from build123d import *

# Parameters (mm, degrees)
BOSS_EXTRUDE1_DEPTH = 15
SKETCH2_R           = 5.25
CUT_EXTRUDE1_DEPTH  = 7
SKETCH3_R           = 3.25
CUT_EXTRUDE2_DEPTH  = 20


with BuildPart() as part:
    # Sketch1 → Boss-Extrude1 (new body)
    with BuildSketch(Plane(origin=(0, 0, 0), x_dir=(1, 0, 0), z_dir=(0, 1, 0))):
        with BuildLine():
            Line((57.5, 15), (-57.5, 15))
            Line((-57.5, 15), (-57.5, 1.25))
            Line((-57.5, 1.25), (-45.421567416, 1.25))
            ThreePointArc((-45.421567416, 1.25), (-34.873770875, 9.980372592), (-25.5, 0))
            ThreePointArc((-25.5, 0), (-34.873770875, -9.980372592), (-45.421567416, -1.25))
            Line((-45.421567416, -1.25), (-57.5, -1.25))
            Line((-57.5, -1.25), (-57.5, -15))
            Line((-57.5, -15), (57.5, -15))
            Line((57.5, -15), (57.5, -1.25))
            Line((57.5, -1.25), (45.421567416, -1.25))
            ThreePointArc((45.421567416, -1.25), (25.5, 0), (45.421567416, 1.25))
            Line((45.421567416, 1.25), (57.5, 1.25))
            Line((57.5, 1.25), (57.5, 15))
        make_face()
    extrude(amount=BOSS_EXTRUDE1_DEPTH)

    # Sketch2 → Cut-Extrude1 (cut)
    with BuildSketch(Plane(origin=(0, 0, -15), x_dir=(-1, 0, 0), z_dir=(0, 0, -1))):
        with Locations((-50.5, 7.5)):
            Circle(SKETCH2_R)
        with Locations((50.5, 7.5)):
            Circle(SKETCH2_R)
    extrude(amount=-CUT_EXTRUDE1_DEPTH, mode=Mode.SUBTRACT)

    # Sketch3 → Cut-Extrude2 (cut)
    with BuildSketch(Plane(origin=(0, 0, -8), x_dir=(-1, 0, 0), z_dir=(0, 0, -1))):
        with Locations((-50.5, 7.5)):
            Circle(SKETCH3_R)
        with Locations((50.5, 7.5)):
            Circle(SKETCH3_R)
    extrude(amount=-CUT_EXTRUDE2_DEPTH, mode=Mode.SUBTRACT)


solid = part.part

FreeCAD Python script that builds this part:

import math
import FreeCAD as App
import Part
import Sketcher
from FreeCAD import Vector
Q = App.Units.Quantity

doc = App.newDocument("Part")
params = doc.addObject("Spreadsheet::Sheet", "Params")
for row, (alias, value) in enumerate([
    ("sketch1_radius", "10 mm"),
    ("sketch1_width", "115 mm"),
    ("sketch1_height", "13.75 mm"),
    ("pad1_length", "15 mm"),
    ("sketch2_diameter", "10.5 mm"),
    ("pocket1_length", "7 mm"),
    ("sketch3_diameter", "6.5 mm"),
    ("pocket2_length", "20 mm"),
], start=1):
    params.set(f"A{row}", alias)
    params.set(f"B{row}", "=" + value)
    params.setAlias(f"B{row}", alias)

body = doc.addObject("PartDesign::Body", "Body")

# Sketch on XZ plane
sketch1 = body.newObject("Sketcher::SketchObject", "Sketch")
sketch1.AttachmentSupport = (doc.getObject("XZ_Plane"), [""])
sketch1.MapMode = "FlatFace"
sketch1.addGeometry([
    Part.LineSegment(Vector(57.5, -15, 0), Vector(-57.5, -15, 0)),  # 0
    Part.LineSegment(Vector(-57.5, -15, 0), Vector(-57.5, -1.25, 0)),  # 1
    Part.LineSegment(Vector(-57.5, -1.25, 0), Vector(-45.421567, -1.25, 0)),  # 2
    Part.ArcOfCircle(Part.Circle(Vector(-35.5, 0, 0), Vector(0, 0, 1), 10), math.radians(-172.819244), math.radians(0)),  # 3
    Part.ArcOfCircle(Part.Circle(Vector(-35.5, 0, 0), Vector(0, 0, 1), 10), math.radians(0), math.radians(172.819244)),  # 4
    Part.LineSegment(Vector(-45.421567, 1.25, 0), Vector(-57.5, 1.25, 0)),  # 5
    Part.LineSegment(Vector(-57.5, 1.25, 0), Vector(-57.5, 15, 0)),  # 6
    Part.LineSegment(Vector(-57.5, 15, 0), Vector(57.5, 15, 0)),  # 7
    Part.LineSegment(Vector(57.5, 15, 0), Vector(57.5, 1.25, 0)),  # 8
    Part.LineSegment(Vector(57.5, 1.25, 0), Vector(45.421567, 1.25, 0)),  # 9
    Part.ArcOfCircle(Part.Circle(Vector(35.5, 0, 0), Vector(0, 0, 1), 10), math.radians(7.180756), math.radians(352.819244)),  # 10
    Part.LineSegment(Vector(45.421567, -1.25, 0), Vector(57.5, -1.25, 0)),  # 11
    Part.LineSegment(Vector(57.5, -1.25, 0), Vector(57.5, -15, 0)),  # 12
], False)
sketch1.addConstraint([
    Sketcher.Constraint("Coincident", 0, 2, 1, 1),
    Sketcher.Constraint("Coincident", 1, 2, 2, 1),
    Sketcher.Constraint("Coincident", 2, 2, 3, 1),
    Sketcher.Constraint("Tangent", 3, 2, 4, 1),
    Sketcher.Constraint("Coincident", 4, 2, 5, 1),
    Sketcher.Constraint("Coincident", 5, 2, 6, 1),
    Sketcher.Constraint("Coincident", 6, 2, 7, 1),
    Sketcher.Constraint("Coincident", 7, 2, 8, 1),
    Sketcher.Constraint("Coincident", 8, 2, 9, 1),
    Sketcher.Constraint("Coincident", 9, 2, 10, 1),
    Sketcher.Constraint("Coincident", 10, 2, 11, 1),
    Sketcher.Constraint("Coincident", 11, 2, 12, 1),
    Sketcher.Constraint("Coincident", 12, 2, 0, 1),
    Sketcher.Constraint("Horizontal", 0),
    Sketcher.Constraint("Vertical", 1),
    Sketcher.Constraint("Horizontal", 2),
    Sketcher.Constraint("Horizontal", 5),
    Sketcher.Constraint("Vertical", 6),
    Sketcher.Constraint("Horizontal", 7),
    Sketcher.Constraint("Vertical", 8),
    Sketcher.Constraint("Horizontal", 9),
    Sketcher.Constraint("Horizontal", 11),
    Sketcher.Constraint("Vertical", 12),
    Sketcher.Constraint("Equal", 3, 4),
    Sketcher.Constraint("Equal", 4, 10),
    Sketcher.Constraint("Symmetric", 3, 3, 10, 3, -1, 1),
    Sketcher.Constraint("Symmetric", 0, 2, 7, 2, -1, 1),
    Sketcher.Constraint("Symmetric", 5, 2, 11, 2, -1, 1),
    Sketcher.Constraint("Symmetric", 5, 2, 8, 2, -2),
    Sketcher.Constraint("Symmetric", 2, 2, 10, 2, -2),
    Sketcher.Constraint("PointOnObject", 3, 2, -1),
    Sketcher.Constraint("Radius", 3, Q("10 mm")),
    Sketcher.Constraint("DistanceX", 0, 2, 0, 1, Q("115 mm")),
    Sketcher.Constraint("DistanceY", 0, 2, -1, 1, Q("15 mm")),
    Sketcher.Constraint("DistanceX", 3, 3, 10, 3, Q("71 mm")),
    Sketcher.Constraint("DistanceY", 1, 1, 1, 2, Q("13.75 mm")),
])
sketch1.setExpression("Constraints[31]", "Params.sketch1_radius")
sketch1.setExpression("Constraints[32]", "Params.sketch1_width")
sketch1.setExpression("Constraints[35]", "Params.sketch1_height")
pad1 = body.newObject("PartDesign::Pad", "Pad")
pad1.Profile = sketch1
pad1.setExpression("Length", "Params.pad1_length")
pad1.Reversed = True

# Sketch on XY plane
sketch2 = body.newObject("Sketcher::SketchObject", "Sketch001")
sketch2.AttachmentSupport = (doc.getObject("XY_Plane"), [""])
sketch2.MapMode = "FlatFace"
sketch2.AttachmentOffset = App.Placement(Vector(0, 0, -15), App.Rotation())
sketch2.addGeometry([
    Part.Circle(Vector(50.5, 7.5, 0), Vector(0, 0, 1), 5.25),
    Part.Circle(Vector(-50.5, 7.5, 0), Vector(0, 0, 1), 5.25),
], False)
sketch2.addConstraint([
    Sketcher.Constraint("Equal", 0, 1),
    Sketcher.Constraint("Symmetric", 0, 3, 1, 3, -2),
    Sketcher.Constraint("Diameter", 0, Q("10.5 mm")),
    Sketcher.Constraint("DistanceX", 1, 3, 0, 3, Q("101 mm")),
    Sketcher.Constraint("DistanceY", -1, 1, 0, 3, Q("7.5 mm")),
])
sketch2.setExpression("Constraints[2]", "Params.sketch2_diameter")
pocket1 = body.newObject("PartDesign::Pocket", "Pocket")
pocket1.Profile = sketch2
pocket1.setExpression("Length", "Params.pocket1_length")
pocket1.Reversed = True

# Sketch on XY plane
sketch3 = body.newObject("Sketcher::SketchObject", "Sketch002")
sketch3.AttachmentSupport = (doc.getObject("XY_Plane"), [""])
sketch3.MapMode = "FlatFace"
sketch3.AttachmentOffset = App.Placement(Vector(0, 0, -8), App.Rotation())
sketch3.addGeometry([
    Part.Circle(Vector(50.5, 7.5, 0), Vector(0, 0, 1), 3.25),
    Part.Circle(Vector(-50.5, 7.5, 0), Vector(0, 0, 1), 3.25),
], False)
sketch3.addConstraint([
    Sketcher.Constraint("Equal", 0, 1),
    Sketcher.Constraint("Symmetric", 0, 3, 1, 3, -2),
    Sketcher.Constraint("Diameter", 0, Q("6.5 mm")),
    Sketcher.Constraint("DistanceX", 1, 3, 0, 3, Q("101 mm")),
    Sketcher.Constraint("DistanceY", -1, 1, 0, 3, Q("7.5 mm")),
])
sketch3.setExpression("Constraints[2]", "Params.sketch3_diameter")
pocket2 = body.newObject("PartDesign::Pocket", "Pocket001")
pocket2.Profile = sketch3
pocket2.setExpression("Length", "Params.pocket2_length")
pocket2.Reversed = True

doc.recompute()
